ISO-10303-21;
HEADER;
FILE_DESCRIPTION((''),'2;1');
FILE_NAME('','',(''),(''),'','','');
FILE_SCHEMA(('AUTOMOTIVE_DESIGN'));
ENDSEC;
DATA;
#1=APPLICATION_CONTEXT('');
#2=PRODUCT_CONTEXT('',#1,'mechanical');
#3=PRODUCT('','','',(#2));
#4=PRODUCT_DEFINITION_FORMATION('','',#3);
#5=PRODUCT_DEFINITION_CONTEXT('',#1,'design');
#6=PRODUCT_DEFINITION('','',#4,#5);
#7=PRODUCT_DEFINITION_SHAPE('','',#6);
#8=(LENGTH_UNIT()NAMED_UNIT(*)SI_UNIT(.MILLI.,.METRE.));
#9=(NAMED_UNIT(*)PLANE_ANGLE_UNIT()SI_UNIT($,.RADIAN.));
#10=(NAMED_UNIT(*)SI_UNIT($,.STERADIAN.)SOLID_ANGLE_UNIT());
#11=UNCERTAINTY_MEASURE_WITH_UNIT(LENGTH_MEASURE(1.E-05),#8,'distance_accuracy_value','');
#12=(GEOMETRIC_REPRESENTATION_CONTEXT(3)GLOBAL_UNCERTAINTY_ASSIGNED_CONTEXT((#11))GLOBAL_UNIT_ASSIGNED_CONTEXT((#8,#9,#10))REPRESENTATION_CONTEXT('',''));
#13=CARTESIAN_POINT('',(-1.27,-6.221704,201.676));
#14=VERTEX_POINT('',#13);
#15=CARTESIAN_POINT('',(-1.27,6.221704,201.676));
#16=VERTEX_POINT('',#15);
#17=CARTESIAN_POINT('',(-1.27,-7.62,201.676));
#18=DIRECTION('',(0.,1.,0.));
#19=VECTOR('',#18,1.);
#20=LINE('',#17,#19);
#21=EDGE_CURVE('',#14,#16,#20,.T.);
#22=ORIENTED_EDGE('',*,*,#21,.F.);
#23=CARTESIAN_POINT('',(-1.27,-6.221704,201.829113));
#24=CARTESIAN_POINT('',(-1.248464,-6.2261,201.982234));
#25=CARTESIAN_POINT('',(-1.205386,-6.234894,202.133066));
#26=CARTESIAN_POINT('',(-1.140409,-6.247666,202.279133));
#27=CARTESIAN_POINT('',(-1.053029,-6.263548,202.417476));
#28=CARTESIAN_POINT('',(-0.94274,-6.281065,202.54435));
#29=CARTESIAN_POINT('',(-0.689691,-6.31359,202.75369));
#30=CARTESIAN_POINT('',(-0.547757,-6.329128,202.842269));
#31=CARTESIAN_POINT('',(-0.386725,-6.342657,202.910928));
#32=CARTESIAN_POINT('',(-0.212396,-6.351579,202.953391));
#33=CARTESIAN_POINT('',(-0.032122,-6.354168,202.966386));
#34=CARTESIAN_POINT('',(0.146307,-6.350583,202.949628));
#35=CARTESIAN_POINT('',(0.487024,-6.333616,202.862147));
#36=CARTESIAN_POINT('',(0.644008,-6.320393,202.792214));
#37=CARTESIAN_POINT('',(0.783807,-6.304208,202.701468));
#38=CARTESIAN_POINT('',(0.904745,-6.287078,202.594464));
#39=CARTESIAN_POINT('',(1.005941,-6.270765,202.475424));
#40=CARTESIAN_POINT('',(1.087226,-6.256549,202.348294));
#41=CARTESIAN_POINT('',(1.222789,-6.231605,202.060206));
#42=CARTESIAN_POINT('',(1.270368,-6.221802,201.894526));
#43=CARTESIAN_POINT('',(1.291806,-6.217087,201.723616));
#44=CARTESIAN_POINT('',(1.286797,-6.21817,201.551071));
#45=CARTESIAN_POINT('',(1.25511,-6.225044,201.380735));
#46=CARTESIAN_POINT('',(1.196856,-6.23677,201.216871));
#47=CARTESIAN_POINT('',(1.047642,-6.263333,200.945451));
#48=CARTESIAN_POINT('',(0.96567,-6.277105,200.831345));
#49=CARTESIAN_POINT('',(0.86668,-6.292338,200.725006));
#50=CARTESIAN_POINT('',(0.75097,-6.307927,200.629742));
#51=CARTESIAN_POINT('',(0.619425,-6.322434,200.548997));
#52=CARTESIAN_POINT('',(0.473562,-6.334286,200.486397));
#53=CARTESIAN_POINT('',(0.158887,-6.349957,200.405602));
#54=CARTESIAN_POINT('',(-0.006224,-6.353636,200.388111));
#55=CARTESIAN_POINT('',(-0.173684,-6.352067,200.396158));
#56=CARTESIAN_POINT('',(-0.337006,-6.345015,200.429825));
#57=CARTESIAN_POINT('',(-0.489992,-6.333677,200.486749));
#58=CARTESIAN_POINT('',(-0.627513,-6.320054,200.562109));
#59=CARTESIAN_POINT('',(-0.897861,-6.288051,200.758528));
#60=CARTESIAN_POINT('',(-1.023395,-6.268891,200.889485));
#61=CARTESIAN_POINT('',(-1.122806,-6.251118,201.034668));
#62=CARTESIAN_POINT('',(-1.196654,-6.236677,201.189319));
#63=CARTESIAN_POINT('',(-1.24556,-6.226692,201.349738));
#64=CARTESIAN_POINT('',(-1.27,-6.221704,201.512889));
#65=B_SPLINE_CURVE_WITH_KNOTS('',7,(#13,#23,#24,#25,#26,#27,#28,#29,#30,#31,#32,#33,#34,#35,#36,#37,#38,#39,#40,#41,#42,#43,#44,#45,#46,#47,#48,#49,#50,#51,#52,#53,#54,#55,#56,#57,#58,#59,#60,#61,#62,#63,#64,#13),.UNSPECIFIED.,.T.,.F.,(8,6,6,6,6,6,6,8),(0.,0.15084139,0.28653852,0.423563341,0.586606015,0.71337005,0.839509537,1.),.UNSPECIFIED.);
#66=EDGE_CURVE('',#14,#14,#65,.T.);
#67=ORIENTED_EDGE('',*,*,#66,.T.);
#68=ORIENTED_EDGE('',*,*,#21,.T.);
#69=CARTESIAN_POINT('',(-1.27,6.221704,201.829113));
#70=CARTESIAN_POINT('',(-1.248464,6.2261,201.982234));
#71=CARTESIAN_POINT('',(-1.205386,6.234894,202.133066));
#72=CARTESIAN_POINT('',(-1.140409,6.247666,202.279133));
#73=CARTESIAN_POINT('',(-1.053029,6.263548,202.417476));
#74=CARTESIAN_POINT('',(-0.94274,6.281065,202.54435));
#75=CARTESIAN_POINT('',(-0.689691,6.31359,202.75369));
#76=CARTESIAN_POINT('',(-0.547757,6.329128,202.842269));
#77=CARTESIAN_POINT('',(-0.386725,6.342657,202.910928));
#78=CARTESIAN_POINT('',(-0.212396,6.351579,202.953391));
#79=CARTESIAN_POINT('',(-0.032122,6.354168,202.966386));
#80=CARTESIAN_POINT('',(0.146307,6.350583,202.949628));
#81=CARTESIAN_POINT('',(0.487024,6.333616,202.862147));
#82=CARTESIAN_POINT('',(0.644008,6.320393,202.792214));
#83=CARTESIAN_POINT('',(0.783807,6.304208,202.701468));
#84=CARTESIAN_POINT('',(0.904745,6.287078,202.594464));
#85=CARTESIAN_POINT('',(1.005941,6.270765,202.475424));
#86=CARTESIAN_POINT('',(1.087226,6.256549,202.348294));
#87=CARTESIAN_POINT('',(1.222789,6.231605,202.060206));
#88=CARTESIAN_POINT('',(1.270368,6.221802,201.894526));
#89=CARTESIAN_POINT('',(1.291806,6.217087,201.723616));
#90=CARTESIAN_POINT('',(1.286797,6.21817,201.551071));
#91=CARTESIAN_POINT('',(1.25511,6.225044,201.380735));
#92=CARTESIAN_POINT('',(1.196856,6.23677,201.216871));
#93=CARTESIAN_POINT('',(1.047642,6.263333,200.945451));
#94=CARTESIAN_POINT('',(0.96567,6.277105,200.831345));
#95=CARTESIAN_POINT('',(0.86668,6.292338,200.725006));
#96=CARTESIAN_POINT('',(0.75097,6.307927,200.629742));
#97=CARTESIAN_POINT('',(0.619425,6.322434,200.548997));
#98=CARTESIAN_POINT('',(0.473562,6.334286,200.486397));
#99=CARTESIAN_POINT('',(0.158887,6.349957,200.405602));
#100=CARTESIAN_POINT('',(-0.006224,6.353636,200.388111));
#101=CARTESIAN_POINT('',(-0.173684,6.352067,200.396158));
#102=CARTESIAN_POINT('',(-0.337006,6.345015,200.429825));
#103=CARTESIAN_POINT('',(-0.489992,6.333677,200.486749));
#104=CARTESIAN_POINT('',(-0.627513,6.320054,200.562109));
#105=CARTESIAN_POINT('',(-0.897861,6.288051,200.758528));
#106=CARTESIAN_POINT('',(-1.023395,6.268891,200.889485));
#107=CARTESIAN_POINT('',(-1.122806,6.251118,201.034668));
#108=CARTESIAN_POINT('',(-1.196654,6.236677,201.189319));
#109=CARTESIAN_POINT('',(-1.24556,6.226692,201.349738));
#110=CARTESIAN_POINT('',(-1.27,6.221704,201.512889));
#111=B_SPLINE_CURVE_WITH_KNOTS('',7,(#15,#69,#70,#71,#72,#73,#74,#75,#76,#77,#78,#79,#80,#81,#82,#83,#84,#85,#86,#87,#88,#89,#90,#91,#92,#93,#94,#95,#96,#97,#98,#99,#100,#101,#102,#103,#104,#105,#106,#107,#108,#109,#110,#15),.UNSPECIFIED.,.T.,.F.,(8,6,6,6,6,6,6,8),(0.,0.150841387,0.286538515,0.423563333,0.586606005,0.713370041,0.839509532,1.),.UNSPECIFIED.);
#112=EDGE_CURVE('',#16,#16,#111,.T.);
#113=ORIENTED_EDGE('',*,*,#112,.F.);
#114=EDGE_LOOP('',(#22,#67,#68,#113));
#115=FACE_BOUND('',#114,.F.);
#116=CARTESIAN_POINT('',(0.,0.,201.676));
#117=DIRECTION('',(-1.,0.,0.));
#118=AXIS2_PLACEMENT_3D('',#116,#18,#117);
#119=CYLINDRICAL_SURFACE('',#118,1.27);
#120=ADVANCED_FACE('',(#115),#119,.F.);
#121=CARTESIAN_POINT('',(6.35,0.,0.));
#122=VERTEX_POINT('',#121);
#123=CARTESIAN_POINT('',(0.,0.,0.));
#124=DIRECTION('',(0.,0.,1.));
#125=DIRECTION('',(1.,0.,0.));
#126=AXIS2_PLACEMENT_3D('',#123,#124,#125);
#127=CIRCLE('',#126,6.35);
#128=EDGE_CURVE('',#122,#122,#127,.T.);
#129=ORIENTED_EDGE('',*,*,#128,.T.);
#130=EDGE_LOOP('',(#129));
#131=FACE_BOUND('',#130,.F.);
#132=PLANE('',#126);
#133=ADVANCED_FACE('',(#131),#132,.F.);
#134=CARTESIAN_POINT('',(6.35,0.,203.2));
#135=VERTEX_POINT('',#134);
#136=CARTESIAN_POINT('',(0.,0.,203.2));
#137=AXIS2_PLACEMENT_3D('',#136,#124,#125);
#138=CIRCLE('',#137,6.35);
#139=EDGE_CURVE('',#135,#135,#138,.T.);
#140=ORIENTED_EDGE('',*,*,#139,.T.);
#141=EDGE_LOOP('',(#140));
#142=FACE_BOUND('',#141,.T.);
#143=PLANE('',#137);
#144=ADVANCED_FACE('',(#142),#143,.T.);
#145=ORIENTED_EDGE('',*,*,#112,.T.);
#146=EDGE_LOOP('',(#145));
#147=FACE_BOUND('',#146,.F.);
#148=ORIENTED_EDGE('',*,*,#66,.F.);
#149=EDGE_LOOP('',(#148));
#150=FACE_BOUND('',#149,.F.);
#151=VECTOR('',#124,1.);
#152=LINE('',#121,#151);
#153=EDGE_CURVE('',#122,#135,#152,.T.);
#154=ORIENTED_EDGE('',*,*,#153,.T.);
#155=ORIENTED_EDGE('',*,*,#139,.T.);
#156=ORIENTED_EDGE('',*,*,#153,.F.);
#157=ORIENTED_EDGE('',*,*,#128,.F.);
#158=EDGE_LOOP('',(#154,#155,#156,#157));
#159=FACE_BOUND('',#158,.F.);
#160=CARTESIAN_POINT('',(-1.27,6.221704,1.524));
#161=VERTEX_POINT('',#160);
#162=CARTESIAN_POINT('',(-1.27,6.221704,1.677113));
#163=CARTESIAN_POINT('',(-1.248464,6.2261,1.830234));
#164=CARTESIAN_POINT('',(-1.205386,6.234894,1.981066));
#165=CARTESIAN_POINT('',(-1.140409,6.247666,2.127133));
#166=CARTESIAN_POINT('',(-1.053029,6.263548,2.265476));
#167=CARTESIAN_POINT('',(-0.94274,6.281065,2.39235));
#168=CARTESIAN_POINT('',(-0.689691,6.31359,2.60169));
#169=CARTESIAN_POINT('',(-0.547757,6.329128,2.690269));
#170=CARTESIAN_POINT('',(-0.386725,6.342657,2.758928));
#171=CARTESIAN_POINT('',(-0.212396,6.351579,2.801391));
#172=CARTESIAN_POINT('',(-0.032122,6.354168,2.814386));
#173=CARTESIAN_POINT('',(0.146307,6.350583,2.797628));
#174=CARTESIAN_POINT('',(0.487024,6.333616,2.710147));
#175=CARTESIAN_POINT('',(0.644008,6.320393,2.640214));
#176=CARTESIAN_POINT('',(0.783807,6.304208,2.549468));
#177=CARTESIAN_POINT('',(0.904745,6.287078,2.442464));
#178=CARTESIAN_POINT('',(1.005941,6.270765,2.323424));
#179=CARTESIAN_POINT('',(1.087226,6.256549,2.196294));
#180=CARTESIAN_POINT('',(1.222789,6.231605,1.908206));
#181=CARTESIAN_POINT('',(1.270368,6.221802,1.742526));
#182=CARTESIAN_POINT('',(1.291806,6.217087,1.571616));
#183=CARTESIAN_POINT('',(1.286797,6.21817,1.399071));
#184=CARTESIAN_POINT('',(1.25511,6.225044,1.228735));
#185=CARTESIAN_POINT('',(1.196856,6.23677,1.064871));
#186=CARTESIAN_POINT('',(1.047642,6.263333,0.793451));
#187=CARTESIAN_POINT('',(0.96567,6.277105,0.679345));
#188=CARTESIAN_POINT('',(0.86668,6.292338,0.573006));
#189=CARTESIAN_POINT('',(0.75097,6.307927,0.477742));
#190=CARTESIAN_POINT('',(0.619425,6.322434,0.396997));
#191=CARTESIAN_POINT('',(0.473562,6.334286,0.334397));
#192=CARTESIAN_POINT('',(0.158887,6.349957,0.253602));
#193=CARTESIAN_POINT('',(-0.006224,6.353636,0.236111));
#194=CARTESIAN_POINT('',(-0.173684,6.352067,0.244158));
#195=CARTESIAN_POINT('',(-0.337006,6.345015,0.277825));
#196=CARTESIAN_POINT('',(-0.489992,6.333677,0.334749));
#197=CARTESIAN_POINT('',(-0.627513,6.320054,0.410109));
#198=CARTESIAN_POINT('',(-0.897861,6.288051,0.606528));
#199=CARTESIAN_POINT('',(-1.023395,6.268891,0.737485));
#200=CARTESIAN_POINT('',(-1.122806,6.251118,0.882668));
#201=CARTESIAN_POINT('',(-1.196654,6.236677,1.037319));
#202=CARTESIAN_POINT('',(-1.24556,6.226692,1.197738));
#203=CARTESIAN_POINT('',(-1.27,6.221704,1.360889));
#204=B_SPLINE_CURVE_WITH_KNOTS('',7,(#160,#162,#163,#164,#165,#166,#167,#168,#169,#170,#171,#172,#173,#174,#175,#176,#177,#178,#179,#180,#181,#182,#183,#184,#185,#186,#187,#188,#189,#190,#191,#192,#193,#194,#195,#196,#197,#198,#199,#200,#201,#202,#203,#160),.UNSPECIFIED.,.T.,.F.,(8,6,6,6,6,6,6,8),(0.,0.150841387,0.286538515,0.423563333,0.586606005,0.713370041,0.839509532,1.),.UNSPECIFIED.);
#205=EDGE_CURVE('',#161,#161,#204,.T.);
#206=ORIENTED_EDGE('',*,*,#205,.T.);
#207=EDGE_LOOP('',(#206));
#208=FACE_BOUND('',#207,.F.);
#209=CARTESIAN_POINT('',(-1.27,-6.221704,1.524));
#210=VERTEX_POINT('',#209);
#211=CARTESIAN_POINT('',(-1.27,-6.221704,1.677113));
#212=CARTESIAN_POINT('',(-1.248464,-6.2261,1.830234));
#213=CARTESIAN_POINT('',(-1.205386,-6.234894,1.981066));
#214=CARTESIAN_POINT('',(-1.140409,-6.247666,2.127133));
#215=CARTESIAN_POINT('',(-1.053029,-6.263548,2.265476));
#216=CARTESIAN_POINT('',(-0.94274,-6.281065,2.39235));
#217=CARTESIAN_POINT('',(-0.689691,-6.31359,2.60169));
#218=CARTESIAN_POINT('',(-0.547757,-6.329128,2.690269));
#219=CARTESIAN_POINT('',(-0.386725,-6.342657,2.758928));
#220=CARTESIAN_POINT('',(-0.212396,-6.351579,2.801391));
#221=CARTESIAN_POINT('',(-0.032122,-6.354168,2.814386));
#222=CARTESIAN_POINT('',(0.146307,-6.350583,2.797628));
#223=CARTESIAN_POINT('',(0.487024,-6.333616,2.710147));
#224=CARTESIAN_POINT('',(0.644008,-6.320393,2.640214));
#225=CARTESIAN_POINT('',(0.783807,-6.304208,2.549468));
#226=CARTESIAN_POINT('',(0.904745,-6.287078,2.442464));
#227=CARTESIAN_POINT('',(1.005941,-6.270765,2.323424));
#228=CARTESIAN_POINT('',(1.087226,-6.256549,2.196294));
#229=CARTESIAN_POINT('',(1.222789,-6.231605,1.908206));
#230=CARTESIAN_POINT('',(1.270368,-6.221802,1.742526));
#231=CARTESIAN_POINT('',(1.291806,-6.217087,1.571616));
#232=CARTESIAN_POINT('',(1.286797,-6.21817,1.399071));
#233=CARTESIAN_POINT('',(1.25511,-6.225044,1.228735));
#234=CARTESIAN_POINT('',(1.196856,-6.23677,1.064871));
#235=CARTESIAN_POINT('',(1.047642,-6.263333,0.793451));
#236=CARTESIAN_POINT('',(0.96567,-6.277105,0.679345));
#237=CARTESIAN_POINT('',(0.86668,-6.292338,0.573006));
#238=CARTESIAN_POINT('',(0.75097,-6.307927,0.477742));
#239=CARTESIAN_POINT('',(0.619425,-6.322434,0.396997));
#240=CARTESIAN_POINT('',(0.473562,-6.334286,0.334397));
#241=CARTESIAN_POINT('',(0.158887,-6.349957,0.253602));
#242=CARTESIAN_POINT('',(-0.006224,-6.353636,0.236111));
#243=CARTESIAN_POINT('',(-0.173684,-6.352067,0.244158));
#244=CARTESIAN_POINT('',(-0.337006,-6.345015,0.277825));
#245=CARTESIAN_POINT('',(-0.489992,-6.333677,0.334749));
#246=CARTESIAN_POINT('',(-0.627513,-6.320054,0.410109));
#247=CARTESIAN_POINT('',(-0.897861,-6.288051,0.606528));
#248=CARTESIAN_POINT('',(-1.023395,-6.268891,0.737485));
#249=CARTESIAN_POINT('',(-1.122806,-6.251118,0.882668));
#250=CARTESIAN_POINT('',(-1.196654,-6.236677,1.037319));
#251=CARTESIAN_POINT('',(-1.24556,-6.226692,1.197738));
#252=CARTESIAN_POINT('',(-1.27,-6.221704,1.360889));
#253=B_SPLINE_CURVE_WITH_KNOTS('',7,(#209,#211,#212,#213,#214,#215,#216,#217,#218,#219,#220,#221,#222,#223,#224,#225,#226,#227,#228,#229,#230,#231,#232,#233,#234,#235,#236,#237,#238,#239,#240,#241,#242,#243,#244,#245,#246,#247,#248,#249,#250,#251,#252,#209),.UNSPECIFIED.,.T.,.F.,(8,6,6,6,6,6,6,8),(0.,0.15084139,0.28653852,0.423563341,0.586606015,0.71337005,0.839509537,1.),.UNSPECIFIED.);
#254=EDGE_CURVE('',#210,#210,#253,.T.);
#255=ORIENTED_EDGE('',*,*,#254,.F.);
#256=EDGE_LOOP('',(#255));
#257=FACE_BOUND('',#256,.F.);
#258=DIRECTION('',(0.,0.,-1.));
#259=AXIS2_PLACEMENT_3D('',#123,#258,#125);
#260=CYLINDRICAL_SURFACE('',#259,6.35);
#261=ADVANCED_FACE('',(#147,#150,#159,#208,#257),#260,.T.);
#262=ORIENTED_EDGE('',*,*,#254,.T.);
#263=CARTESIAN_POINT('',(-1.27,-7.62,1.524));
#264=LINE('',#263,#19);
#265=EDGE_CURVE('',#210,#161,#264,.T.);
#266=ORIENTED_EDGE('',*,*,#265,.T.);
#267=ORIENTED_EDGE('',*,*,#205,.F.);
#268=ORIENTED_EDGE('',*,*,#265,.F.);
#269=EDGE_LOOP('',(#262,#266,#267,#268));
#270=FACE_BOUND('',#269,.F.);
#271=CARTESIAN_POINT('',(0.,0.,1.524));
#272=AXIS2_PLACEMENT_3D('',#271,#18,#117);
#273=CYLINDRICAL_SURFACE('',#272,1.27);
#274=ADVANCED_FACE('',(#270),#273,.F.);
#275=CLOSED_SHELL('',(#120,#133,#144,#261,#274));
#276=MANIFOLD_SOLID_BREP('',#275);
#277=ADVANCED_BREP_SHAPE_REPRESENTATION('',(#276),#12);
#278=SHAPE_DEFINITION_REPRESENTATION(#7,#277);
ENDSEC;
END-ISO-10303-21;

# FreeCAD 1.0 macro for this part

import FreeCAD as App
import Part
import Sketcher
from FreeCAD import Vector
Q = App.Units.Quantity

doc = App.newDocument("Part")
body = doc.addObject("PartDesign::Body", "Body")

# Sketch on XY plane
sketch1 = body.newObject("Sketcher::SketchObject", "Sketch")
sketch1.AttachmentSupport = (doc.getObject("XY_Plane"), [""])
sketch1.MapMode = "FlatFace"
sketch1.addGeometry(Part.Circle(Vector(0, 0, 0), Vector(0, 0, 1), 6), False)
sketch1.addConstraint([
    Sketcher.Constraint("Coincident", 0, 3, -1, 1),
    Sketcher.Constraint("Diameter", 0, Q("0.5 in")),
])
pad1 = body.newObject("PartDesign::Pad", "Pad")
pad1.Profile = sketch1
pad1.Length = Q("8 in")

# Sketch on XZ plane
sketch2 = body.newObject("Sketcher::SketchObject", "Sketch001")
sketch2.AttachmentSupport = (doc.getObject("XZ_Plane"), [""])
sketch2.MapMode = "FlatFace"
sketch2.addGeometry([
    Part.Circle(Vector(0, 201.7, 0), Vector(0, 0, 1), 1.3),
    Part.Circle(Vector(0, 1.5, 0), Vector(0, 0, 1), 1.3),
], False)
sketch2.addConstraint([
    Sketcher.Constraint("Equal", 0, 1),
    Sketcher.Constraint("PointOnObject", 0, 3, -2),
    Sketcher.Constraint("PointOnObject", 1, 3, -2),
    Sketcher.Constraint("Diameter", 0, Q("0.1 in")),
    Sketcher.Constraint("DistanceY", -1, 1, 1, 3, Q("0.06 in")),
    Sketcher.Constraint("DistanceY", -1, 1, 0, 3, Q("7.94 in")),
])
pocket1 = body.newObject("PartDesign::Pocket", "Pocket")
pocket1.Profile = sketch2
pocket1.Length = Q("0.6 in")
pocket1.Midplane = True

doc.recompute()
